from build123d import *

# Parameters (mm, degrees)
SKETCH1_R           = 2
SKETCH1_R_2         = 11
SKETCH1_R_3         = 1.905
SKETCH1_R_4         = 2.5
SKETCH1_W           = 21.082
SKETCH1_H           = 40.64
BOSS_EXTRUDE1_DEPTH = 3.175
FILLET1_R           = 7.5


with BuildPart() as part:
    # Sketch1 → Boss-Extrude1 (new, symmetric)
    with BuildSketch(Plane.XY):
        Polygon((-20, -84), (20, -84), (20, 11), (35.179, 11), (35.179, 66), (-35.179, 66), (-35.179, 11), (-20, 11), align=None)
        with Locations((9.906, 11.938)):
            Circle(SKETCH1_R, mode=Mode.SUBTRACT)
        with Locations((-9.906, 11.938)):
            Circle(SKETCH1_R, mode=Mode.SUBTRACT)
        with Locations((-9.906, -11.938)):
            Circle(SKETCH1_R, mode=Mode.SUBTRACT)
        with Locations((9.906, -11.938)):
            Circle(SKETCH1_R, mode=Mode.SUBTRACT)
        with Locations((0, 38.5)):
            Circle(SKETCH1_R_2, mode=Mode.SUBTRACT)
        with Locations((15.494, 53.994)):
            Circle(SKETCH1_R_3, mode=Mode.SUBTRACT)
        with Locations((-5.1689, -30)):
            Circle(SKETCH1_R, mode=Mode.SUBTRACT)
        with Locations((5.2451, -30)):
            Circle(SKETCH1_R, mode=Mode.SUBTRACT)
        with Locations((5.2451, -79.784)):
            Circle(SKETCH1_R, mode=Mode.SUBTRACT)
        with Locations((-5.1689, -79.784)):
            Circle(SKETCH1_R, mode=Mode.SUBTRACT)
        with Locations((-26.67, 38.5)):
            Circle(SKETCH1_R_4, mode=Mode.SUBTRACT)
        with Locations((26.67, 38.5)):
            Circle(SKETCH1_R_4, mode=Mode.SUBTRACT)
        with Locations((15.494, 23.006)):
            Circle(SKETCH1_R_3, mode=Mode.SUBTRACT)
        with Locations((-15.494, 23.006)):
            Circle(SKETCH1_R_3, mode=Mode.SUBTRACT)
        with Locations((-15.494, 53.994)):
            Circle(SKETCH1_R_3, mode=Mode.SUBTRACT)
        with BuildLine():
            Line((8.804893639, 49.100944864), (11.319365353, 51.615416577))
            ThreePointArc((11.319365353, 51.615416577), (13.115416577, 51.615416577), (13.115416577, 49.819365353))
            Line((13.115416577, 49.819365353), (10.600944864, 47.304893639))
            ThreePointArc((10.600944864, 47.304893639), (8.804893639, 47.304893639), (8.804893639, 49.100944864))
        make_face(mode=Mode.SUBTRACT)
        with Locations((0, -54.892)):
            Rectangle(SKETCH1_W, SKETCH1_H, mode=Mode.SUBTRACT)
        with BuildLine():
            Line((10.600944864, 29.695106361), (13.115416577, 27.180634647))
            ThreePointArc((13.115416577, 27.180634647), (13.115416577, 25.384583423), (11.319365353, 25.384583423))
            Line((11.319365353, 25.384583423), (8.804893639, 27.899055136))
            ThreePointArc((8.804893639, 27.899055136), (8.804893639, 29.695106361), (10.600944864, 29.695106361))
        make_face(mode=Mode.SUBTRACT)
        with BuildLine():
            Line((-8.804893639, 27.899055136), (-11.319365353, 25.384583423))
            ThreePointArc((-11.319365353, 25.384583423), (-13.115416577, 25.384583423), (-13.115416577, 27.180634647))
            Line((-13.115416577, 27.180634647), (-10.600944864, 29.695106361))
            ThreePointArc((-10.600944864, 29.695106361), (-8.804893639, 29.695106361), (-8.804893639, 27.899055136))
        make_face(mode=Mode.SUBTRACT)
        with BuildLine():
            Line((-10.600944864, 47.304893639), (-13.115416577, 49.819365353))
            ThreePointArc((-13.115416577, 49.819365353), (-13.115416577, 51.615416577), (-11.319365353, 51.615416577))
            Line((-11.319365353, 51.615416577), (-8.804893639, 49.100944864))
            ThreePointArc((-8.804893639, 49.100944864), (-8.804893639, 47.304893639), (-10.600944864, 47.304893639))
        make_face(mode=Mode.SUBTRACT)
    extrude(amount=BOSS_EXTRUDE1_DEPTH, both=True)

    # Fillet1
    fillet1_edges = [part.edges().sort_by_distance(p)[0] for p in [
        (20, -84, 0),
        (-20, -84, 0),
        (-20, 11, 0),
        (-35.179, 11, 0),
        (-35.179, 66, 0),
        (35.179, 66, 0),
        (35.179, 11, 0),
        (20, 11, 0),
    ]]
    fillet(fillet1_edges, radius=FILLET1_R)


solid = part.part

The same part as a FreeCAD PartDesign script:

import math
import FreeCAD as App
import Part
import Sketcher
from FreeCAD import Vector
Q = App.Units.Quantity


def edges_at(feature, points):
    """Names of the edges that pass closest to the given points."""
    edges = feature.Shape.Edges
    near = lambda p: min(range(len(edges)), key=lambda i: edges[i].distToShape(Part.Vertex(*p))[0])
    return sorted({f"Edge{near(p) + 1}" for p in points})


def add_polygon(sketch, points):
    """Adds a closed chain of lines whose ends are joined by coincident constraints."""
    first, n = sketch.GeometryCount, len(points)
    for a, b in zip(points, points[1:] + points[:1]):
        sketch.addGeometry(Part.LineSegment(App.Vector(*a, 0), App.Vector(*b, 0)), False)
    for i in range(n):
        sketch.addConstraint(Sketcher.Constraint("Coincident", first + i, 2, first + (i + 1) % n, 1))

doc = App.newDocument("Part")
body = doc.addObject("PartDesign::Body", "Body")

sketch1 = body.newObject("Sketcher::SketchObject", "Sketch")
sketch1.AttachmentSupport = (doc.getObject("XY_Plane"), [""])
sketch1.MapMode = "FlatFace"
add_polygon(sketch1, [(-20, -84), (20, -84), (20, 11), (35.2, 11), (35.2, 66), (-35.2, 66), (-35.2, 11), (-20, 11)])
sketch1.addGeometry(Part.Circle(Vector(-5.2, -79.8, 0), Vector(0, 0, 1), 2), False)
sketch1.addGeometry(Part.Circle(Vector(-5.2, -30, 0), Vector(0, 0, 1), 2), False)
sketch1.addGeometry(Part.Circle(Vector(5.2, -79.8, 0), Vector(0, 0, 1), 2), False)
add_polygon(sketch1, [(10.5, -75.2), (-10.5, -75.2), (-10.5, -34.6), (10.5, -34.6)])
sketch1.addGeometry(Part.Circle(Vector(5.2, -30, 0), Vector(0, 0, 1), 2), False)
sketch1.addGeometry(Part.Circle(Vector(-9.9, -11.9, 0), Vector(0, 0, 1), 2), False)
sketch1.addGeometry(Part.Circle(Vector(-9.9, 11.9, 0), Vector(0, 0, 1), 2), False)
sketch1.addGeometry(Part.Circle(Vector(-26.7, 38.5, 0), Vector(0, 0, 1), 2.5), False)
sketch1.addGeometry(Part.Circle(Vector(-15.5, 23, 0), Vector(0, 0, 1), 1.9), False)
sketch1.addGeometry(Part.Circle(Vector(-15.5, 54, 0), Vector(0, 0, 1), 1.9), False)
sketch1.addGeometry(Part.ArcOfCircle(Part.Circle(Vector(-9.7, 28.8, 0), Vector(0, 0, 1), 1.3), math.radians(-45), math.radians(135)), False)
sketch1.addGeometry(Part.LineSegment(Vector(-8.8, 27.9, 0), Vector(-11.3, 25.4, 0)), False)
sketch1.addGeometry(Part.ArcOfCircle(Part.Circle(Vector(-12.2, 26.3, 0), Vector(0, 0, 1), 1.3), math.radians(135), math.radians(315)), False)
sketch1.addGeometry(Part.LineSegment(Vector(-13.1, 27.2, 0), Vector(-10.6, 29.7, 0)), False)
sketch1.addGeometry(Part.ArcOfCircle(Part.Circle(Vector(-9.7, 48.2, 0), Vector(0, 0, 1), 1.3), math.radians(-135), math.radians(45)), False)
sketch1.addGeometry(Part.LineSegment(Vector(-10.6, 47.3, 0), Vector(-13.1, 49.8, 0)), False)
sketch1.addGeometry(Part.ArcOfCircle(Part.Circle(Vector(-12.2, 50.7, 0), Vector(0, 0, 1), 1.3), math.radians(45), math.radians(225)), False)
sketch1.addGeometry(Part.LineSegment(Vector(-11.3, 51.6, 0), Vector(-8.8, 49.1, 0)), False)
sketch1.addGeometry(Part.Circle(Vector(9.9, -11.9, 0), Vector(0, 0, 1), 2), False)
sketch1.addGeometry(Part.Circle(Vector(9.9, 11.9, 0), Vector(0, 0, 1), 2), False)
sketch1.addGeometry(Part.Circle(Vector(0, 38.5, 0), Vector(0, 0, 1), 11), False)
sketch1.addGeometry(Part.ArcOfCircle(Part.Circle(Vector(9.7, 28.8, 0), Vector(0, 0, 1), 1.3), math.radians(45), math.radians(225)), False)
sketch1.addGeometry(Part.LineSegment(Vector(10.6, 29.7, 0), Vector(13.1, 27.2, 0)), False)
sketch1.addGeometry(Part.ArcOfCircle(Part.Circle(Vector(12.2, 26.3, 0), Vector(0, 0, 1), 1.3), math.radians(-135), math.radians(45)), False)
sketch1.addGeometry(Part.LineSegment(Vector(11.3, 25.4, 0), Vector(8.8, 27.9, 0)), False)
sketch1.addGeometry(Part.ArcOfCircle(Part.Circle(Vector(9.7, 48.2, 0), Vector(0, 0, 1), 1.3), math.radians(135), math.radians(315)), False)
sketch1.addGeometry(Part.LineSegment(Vector(8.8, 49.1, 0), Vector(11.3, 51.6, 0)), False)
sketch1.addGeometry(Part.ArcOfCircle(Part.Circle(Vector(12.2, 50.7, 0), Vector(0, 0, 1), 1.3), math.radians(-45), math.radians(135)), False)
sketch1.addGeometry(Part.LineSegment(Vector(13.1, 49.8, 0), Vector(10.6, 47.3, 0)), False)
sketch1.addGeometry(Part.Circle(Vector(15.5, 23, 0), Vector(0, 0, 1), 1.9), False)
sketch1.addGeometry(Part.Circle(Vector(26.7, 38.5, 0), Vector(0, 0, 1), 2.5), False)
sketch1.addGeometry(Part.Circle(Vector(15.5, 54, 0), Vector(0, 0, 1), 1.9), False)
sketch1.addConstraint([
    Sketcher.Constraint("Tangent", 21, 1, 22, 1),
    Sketcher.Constraint("Tangent", 22, 2, 23, 2),
    Sketcher.Constraint("Tangent", 23, 1, 24, 1),
    Sketcher.Constraint("Tangent", 24, 2, 21, 2),
    Sketcher.Constraint("Tangent", 25, 1, 26, 1),
    Sketcher.Constraint("Tangent", 26, 2, 27, 2),
    Sketcher.Constraint("Tangent", 27, 1, 28, 1),
    Sketcher.Constraint("Tangent", 28, 2, 25, 2),
    Sketcher.Constraint("Tangent", 32, 1, 33, 1),
    Sketcher.Constraint("Tangent", 33, 2, 34, 2),
    Sketcher.Constraint("Tangent", 34, 1, 35, 1),
    Sketcher.Constraint("Tangent", 35, 2, 32, 2),
    Sketcher.Constraint("Tangent", 36, 1, 37, 1),
    Sketcher.Constraint("Tangent", 37, 2, 38, 2),
    Sketcher.Constraint("Tangent", 38, 1, 39, 1),
    Sketcher.Constraint("Tangent", 39, 2, 36, 2),
    Sketcher.Constraint("Horizontal", 0),
    Sketcher.Constraint("Vertical", 1),
    Sketcher.Constraint("Horizontal", 2),
    Sketcher.Constraint("Vertical", 3),
    Sketcher.Constraint("Horizontal", 4),
    Sketcher.Constraint("Vertical", 5),
    Sketcher.Constraint("Horizontal", 6),
    Sketcher.Constraint("Vertical", 7),
    Sketcher.Constraint("Horizontal", 11),
    Sketcher.Constraint("Vertical", 12),
    Sketcher.Constraint("Horizontal", 13),
    Sketcher.Constraint("Vertical", 14),
    Sketcher.Constraint("Equal", 8, 9),
    Sketcher.Constraint("Equal", 9, 10),
    Sketcher.Constraint("Equal", 10, 15),
    Sketcher.Constraint("Equal", 15, 16),
    Sketcher.Constraint("Equal", 16, 17),
    Sketcher.Constraint("Equal", 19, 20),
    Sketcher.Constraint("Equal", 21, 23),
    Sketcher.Constraint("Equal", 23, 25),
    Sketcher.Constraint("Equal", 25, 27),
    Sketcher.Constraint("Equal", 17, 29),
    Sketcher.Constraint("Equal", 29, 30),
    Sketcher.Constraint("Equal", 27, 32),
    Sketcher.Constraint("Equal", 32, 34),
    Sketcher.Constraint("Equal", 34, 36),
    Sketcher.Constraint("Equal", 36, 38),
    Sketcher.Constraint("Equal", 20, 40),
    Sketcher.Constraint("Equal", 18, 41),
    Sketcher.Constraint("Equal", 40, 42),
    Sketcher.Constraint("Symmetric", 17, 3, 29, 3, -1, 1),
    Sketcher.Constraint("Symmetric", 16, 3, 30, 3, -1, 1),
    Sketcher.Constraint("Symmetric", 16, 3, 29, 3, -2),
    Sketcher.Constraint("Symmetric", 21, 3, 32, 3, -2),
    Sketcher.Constraint("Symmetric", 23, 3, 34, 3, -2),
    Sketcher.Constraint("Symmetric", 25, 3, 36, 3, -2),
    Sketcher.Constraint("Symmetric", 27, 3, 38, 3, -2),
    Sketcher.Constraint("Symmetric", 19, 3, 40, 3, -2),
    Sketcher.Constraint("Symmetric", 18, 3, 41, 3, -2),
    Sketcher.Constraint("Symmetric", 20, 3, 42, 3, -2),
    Sketcher.Constraint("Symmetric", 2, 2, 5, 2, -2),
    Sketcher.Constraint("PointOnObject", 31, 3, -2),
    Sketcher.Constraint("Perpendicular", 24, 26),
    Sketcher.Constraint("Parallel", 28, 33),
    Sketcher.Constraint("Horizontal", 8, 3, 10, 3),
    Sketcher.Constraint("Horizontal", 9, 3, 15, 3),
    Sketcher.Constraint("Horizontal", 18, 3, 31, 3),
    Sketcher.Constraint("Vertical", 8, 3, 9, 3),
    Sketcher.Constraint("Vertical", 10, 3, 15, 3),
    Sketcher.Constraint("Vertical", 19, 3, 20, 3),
    Sketcher.Constraint("Vertical", 21, 3, 25, 3),
    Sketcher.Constraint("Vertical", 23, 3, 27, 3),
    Sketcher.Constraint("Equal", 2, 6),
    Sketcher.Constraint("Diameter", 8, Q("4 mm")),
    Sketcher.Constraint("Diameter", 18, Q("5 mm")),
    Sketcher.Constraint("Diameter", 31, Q("22 mm")),
    Sketcher.Constraint("Diameter", 19, Q("3.81 mm")),
    Sketcher.Constraint("DistanceX", 0, 1, 0, 2, Q("40 mm")),
    Sketcher.Constraint("DistanceY", 1, 1, 1, 2, Q("95 mm")),
    Sketcher.Constraint("DistanceY", 3, 1, 3, 2, Q("55 mm")),
    Sketcher.Constraint("Radius", 21, Q("1.27 mm")),
    Sketcher.Constraint("DistanceY", 9, 3, -1, 1, Q("30 mm")),
    Sketcher.Constraint("DistanceY", 0, 2, -1, 1, Q("84 mm")),
    Sketcher.Constraint("DistanceY", 12, 1, 12, 2, Q("40.64 mm")),
    Sketcher.Constraint("DistanceY", -1, 1, 18, 3, Q("38.5 mm")),
    Sketcher.Constraint("DistanceX", 19, 3, 29, 3, Q("25.4 mm")),
    Sketcher.Constraint("DistanceX", 2, 1, 2, 2, Q("15.179 mm")),
    Sketcher.Constraint("DistanceX", 11, 2, 11, 1, Q("21.082 mm")),
    Sketcher.Constraint("DistanceX", 18, 3, -1, 1, Q("26.67 mm")),
    Sketcher.Constraint("Distance", 22, Q("3.556 mm")),
    Sketcher.Constraint("DistanceY", 8, 3, -1, 1, Q("79.784 mm")),
    Sketcher.Constraint("DistanceX", 16, 3, -1, 1, Q("9.906 mm")),
    Sketcher.Constraint("DistanceY", 16, 3, -1, 1, Q("11.938 mm")),
    Sketcher.Constraint("DistanceY", -1, 1, 19, 3, Q("23.006 mm")),
    Sketcher.Constraint("DistanceY", -1, 1, 20, 3, Q("53.994 mm")),
    Sketcher.Constraint("DistanceX", 11, 2, -1, 1, Q("10.541 mm")),
    Sketcher.Constraint("DistanceY", 11, 2, -1, 1, Q("75.212 mm")),
    Sketcher.Constraint("DistanceX", 8, 3, 10, 3, Q("10.414 mm")),
    Sketcher.Constraint("DistanceX", 8, 3, -1, 1, Q("5.1689 mm")),
    Sketcher.Constraint("DistanceX", 21, 3, -1, 1, Q("9.702919 mm")),
    Sketcher.Constraint("DistanceY", -1, 1, 21, 3, Q("28.797081 mm")),
    Sketcher.Constraint("DistanceY", -1, 1, 25, 3, Q("48.202919 mm")),
])
pad1 = body.newObject("PartDesign::Pad", "Pad")
pad1.Profile = sketch1
pad1.Length = 6.35
pad1.Midplane = True
doc.recompute()

fillet = body.newObject("PartDesign::Fillet", "Fillet")
fillet.Base = (pad1, edges_at(pad1, [
    (20, -84, 0),
    (-20, -84, 0),
    (-20, 11, 0),
    (-35.179, 11, 0),
    (-35.179, 66, 0),
    (35.179, 66, 0),
    (35.179, 11, 0),
    (20, 11, 0),
]))
fillet.Radius = 7.5

doc.recompute()
